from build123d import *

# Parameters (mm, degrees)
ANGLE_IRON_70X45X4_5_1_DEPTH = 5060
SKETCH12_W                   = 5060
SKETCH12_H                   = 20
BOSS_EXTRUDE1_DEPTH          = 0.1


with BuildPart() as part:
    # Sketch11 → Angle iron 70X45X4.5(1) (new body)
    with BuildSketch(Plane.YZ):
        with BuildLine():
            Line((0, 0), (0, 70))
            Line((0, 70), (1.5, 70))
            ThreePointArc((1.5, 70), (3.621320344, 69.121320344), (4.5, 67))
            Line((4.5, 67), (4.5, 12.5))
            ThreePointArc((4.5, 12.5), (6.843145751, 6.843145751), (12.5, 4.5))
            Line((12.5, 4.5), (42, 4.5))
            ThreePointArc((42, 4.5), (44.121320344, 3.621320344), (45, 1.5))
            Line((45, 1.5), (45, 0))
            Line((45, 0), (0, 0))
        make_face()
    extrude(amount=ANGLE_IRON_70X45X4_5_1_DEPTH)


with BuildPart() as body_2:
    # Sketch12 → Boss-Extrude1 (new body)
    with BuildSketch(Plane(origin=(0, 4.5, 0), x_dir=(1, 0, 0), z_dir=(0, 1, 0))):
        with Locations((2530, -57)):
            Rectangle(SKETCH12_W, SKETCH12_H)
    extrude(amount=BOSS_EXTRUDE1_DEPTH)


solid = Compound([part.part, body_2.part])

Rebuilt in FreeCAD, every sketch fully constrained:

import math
import FreeCAD as App
import Part
import Sketcher
Q = App.Units.Quantity

doc = App.newDocument("Part")
params = doc.addObject("Spreadsheet::Sheet", "Params")
for row, (alias, value) in enumerate([
    ("sketch1_radius", "3 mm"),
    ("sketch1_radius2", "8 mm"),
    ("sketch1_width", "45 mm"),
    ("sketch1_height", "70 mm"),
    ("sketch1_width2", "29.5 mm"),
    ("pad1_length", "5060 mm"),
    ("sketch2_width", "5060 mm"),
    ("sketch2_height", "20 mm"),
    ("pad2_length", "0.1 mm"),
], start=1):
    params.set(f"A{row}", alias)
    params.set(f"B{row}", "=" + value)
    params.setAlias(f"B{row}", alias)

body = doc.addObject("PartDesign::Body", "Body")

# Sketch on YZ plane
sketch1 = doc.addObject("Sketcher::SketchObject", "Sketch")
body.addObject(sketch1)
sketch1.AttachmentSupport = (doc.YZ_Plane, [""])
sketch1.MapMode = "FlatFace"
sketch1.addGeometry([
    Part.LineSegment(App.Vector(0, 70, 0), App.Vector(0, 0, 0)),  # 0
    Part.LineSegment(App.Vector(0, 0, 0), App.Vector(45, 0, 0)),  # 1
    Part.LineSegment(App.Vector(45, 0, 0), App.Vector(45, 1.5, 0)),  # 2
    Part.ArcOfCircle(Part.Circle(App.Vector(42, 1.5, 0), App.Vector(0, 0, 1), 3), math.radians(0), math.radians(90)),  # 3
    Part.LineSegment(App.Vector(42, 4.5, 0), App.Vector(12.5, 4.5, 0)),  # 4
    Part.ArcOfCircle(Part.Circle(App.Vector(12.5, 12.5, 0), App.Vector(0, 0, 1), 8), math.radians(-180), math.radians(-90)),  # 5
    Part.LineSegment(App.Vector(4.5, 12.5, 0), App.Vector(4.5, 67, 0)),  # 6
    Part.ArcOfCircle(Part.Circle(App.Vector(1.5, 67, 0), App.Vector(0, 0, 1), 3), math.radians(0), math.radians(90)),  # 7
    Part.LineSegment(App.Vector(1.5, 70, 0), App.Vector(0, 70, 0)),  # 8
], False)
sketch1.addConstraint([
    Sketcher.Constraint("Coincident", 0, 2, 1, 1),
    Sketcher.Constraint("Coincident", 1, 2, 2, 1),
    Sketcher.Constraint("Tangent", 2, 2, 3, 1),
    Sketcher.Constraint("Tangent", 3, 2, 4, 1),
    Sketcher.Constraint("Tangent", 4, 2, 5, 2),
    Sketcher.Constraint("Tangent", 5, 1, 6, 1),
    Sketcher.Constraint("Tangent", 6, 2, 7, 1),
    Sketcher.Constraint("Tangent", 7, 2, 8, 1),
    Sketcher.Constraint("Coincident", 8, 2, 0, 1),
    Sketcher.Constraint("Vertical", 0),
    Sketcher.Constraint("Horizontal", 1),
    Sketcher.Constraint("Vertical", 2),
    Sketcher.Constraint("Horizontal", 4),
    Sketcher.Constraint("Vertical", 6),
    Sketcher.Constraint("Horizontal", 8),
    Sketcher.Constraint("Coincident", 0, 2, -1, 1),
    Sketcher.Constraint("Equal", 3, 7),
    Sketcher.Constraint("Equal", 8, 2),
    Sketcher.Constraint("Radius", 3, Q("3 mm")),
    Sketcher.Constraint("Radius", 5, Q("8 mm")),
    Sketcher.Constraint("DistanceX", 1, 1, 1, 2, Q("45 mm")),
    Sketcher.Constraint("DistanceY", 0, 2, 0, 1, Q("70 mm")),
    Sketcher.Constraint("DistanceX", 4, 2, 4, 1, Q("29.5 mm")),
])
sketch1.setExpression("Constraints[18]", "Params.sketch1_radius")
sketch1.setExpression("Constraints[19]", "Params.sketch1_radius2")
sketch1.setExpression("Constraints[20]", "Params.sketch1_width")
sketch1.setExpression("Constraints[21]", "Params.sketch1_height")
sketch1.setExpression("Constraints[22]", "Params.sketch1_width2")
pad1 = doc.addObject("PartDesign::Pad", "Pad")
body.addObject(pad1)
pad1.Profile = sketch1
pad1.setExpression("Length", "Params.pad1_length")
body2 = doc.addObject("PartDesign::Body", "Body001")

# Sketch on XZ plane
sketch2 = doc.addObject("Sketcher::SketchObject", "Sketch001")
body2.addObject(sketch2)
sketch2.AttachmentSupport = (doc.getObject("XZ_Plane001"), [""])
sketch2.MapMode = "FlatFace"
sketch2.AttachmentOffset = App.Placement(App.Vector(0, 0, -4.5), App.Rotation())
sketch2.addGeometry([
    Part.LineSegment(App.Vector(0, 47, 0), App.Vector(0, 67, 0)),
    Part.LineSegment(App.Vector(0, 67, 0), App.Vector(5060, 67, 0)),
    Part.LineSegment(App.Vector(5060, 67, 0), App.Vector(5060, 47, 0)),
    Part.LineSegment(App.Vector(5060, 47, 0), App.Vector(0, 47, 0)),
], False)
sketch2.addConstraint([
    Sketcher.Constraint("Coincident", 0, 2, 1, 1),
    Sketcher.Constraint("Coincident", 1, 2, 2, 1),
    Sketcher.Constraint("Coincident", 2, 2, 3, 1),
    Sketcher.Constraint("Coincident", 3, 2, 0, 1),
    Sketcher.Constraint("Vertical", 0),
    Sketcher.Constraint("Horizontal", 1),
    Sketcher.Constraint("Vertical", 2),
    Sketcher.Constraint("Horizontal", 3),
    Sketcher.Constraint("PointOnObject", 0, 2, -2),
    Sketcher.Constraint("DistanceX", 1, 1, 1, 2, Q("5060 mm")),
    Sketcher.Constraint("DistanceY", 0, 1, 0, 2, Q("20 mm")),
    Sketcher.Constraint("DistanceY", -1, 1, 0, 2, Q("67 mm")),
])
sketch2.setExpression("Constraints[9]", "Params.sketch2_width")
sketch2.setExpression("Constraints[10]", "Params.sketch2_height")
pad2 = doc.addObject("PartDesign::Pad", "Pad001")
body2.addObject(pad2)
pad2.Profile = sketch2
pad2.setExpression("Length", "Params.pad2_length")
pad2.Reversed = True

doc.recompute()
